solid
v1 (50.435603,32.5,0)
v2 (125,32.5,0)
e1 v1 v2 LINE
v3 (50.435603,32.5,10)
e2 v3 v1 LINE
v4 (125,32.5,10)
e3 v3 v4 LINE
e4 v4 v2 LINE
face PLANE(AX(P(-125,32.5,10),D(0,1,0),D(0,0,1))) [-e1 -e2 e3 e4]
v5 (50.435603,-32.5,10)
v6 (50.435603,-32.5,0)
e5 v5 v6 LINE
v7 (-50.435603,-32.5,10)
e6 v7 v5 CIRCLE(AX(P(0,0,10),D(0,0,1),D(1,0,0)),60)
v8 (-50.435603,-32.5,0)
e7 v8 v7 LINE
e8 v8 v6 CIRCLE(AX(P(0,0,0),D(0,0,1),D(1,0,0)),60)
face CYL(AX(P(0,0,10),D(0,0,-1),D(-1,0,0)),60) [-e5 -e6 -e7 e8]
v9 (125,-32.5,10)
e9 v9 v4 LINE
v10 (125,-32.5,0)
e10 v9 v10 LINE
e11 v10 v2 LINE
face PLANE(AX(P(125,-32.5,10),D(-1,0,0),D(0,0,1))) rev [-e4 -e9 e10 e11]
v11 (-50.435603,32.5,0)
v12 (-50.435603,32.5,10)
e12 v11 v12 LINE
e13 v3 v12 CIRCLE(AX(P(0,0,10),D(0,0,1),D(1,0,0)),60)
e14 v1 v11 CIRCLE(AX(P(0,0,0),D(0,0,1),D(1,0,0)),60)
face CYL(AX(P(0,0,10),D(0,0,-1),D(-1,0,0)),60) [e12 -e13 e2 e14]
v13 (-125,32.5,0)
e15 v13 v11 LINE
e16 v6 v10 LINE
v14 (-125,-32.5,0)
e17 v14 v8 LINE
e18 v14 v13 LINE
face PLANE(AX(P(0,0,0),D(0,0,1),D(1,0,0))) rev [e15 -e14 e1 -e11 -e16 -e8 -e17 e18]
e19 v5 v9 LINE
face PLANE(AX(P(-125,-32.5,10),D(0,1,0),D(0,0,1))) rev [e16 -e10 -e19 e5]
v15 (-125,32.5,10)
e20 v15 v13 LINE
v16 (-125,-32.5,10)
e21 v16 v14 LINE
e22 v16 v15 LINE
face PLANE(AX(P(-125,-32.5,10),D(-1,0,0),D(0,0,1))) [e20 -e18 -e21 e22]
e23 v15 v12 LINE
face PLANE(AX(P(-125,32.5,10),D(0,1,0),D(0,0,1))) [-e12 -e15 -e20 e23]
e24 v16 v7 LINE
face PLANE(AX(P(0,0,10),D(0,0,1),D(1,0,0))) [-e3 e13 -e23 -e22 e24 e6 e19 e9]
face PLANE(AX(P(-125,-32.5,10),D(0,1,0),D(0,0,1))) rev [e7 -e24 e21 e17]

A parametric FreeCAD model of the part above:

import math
import FreeCAD as App
import Part
import Sketcher
from FreeCAD import Vector
Q = App.Units.Quantity

doc = App.newDocument("Part")
body = doc.addObject("PartDesign::Body", "Body")

# Sketch on XY plane
sketch1 = body.newObject("Sketcher::SketchObject", "Sketch")
sketch1.AttachmentSupport = (doc.getObject("XY_Plane"), [""])
sketch1.MapMode = "FlatFace"
sketch1.addGeometry([
    Part.LineSegment(Vector(50, -32, 0), Vector(125, -32, 0)),  # 0
    Part.LineSegment(Vector(125, -32, 0), Vector(125, 32, 0)),  # 1
    Part.LineSegment(Vector(125, 32, 0), Vector(50, 32, 0)),  # 2
    Part.ArcOfCircle(Part.Circle(Vector(0, 0, 0), Vector(0, 0, 1), 60), math.radians(33), math.radians(147)),  # 3
    Part.LineSegment(Vector(-50, 32, 0), Vector(-125, 32, 0)),  # 4
    Part.LineSegment(Vector(-125, 32, 0), Vector(-125, -32, 0)),  # 5
    Part.LineSegment(Vector(-125, -32, 0), Vector(-50, -32, 0)),  # 6
    Part.ArcOfCircle(Part.Circle(Vector(0, 0, 0), Vector(0, 0, 1), 60), math.radians(-147), math.radians(-33)),  # 7
], False)
sketch1.addConstraint([
    Sketcher.Constraint("Coincident", 0, 2, 1, 1),
    Sketcher.Constraint("Coincident", 1, 2, 2, 1),
    Sketcher.Constraint("Coincident", 2, 2, 3, 1),
    Sketcher.Constraint("Coincident", 3, 2, 4, 1),
    Sketcher.Constraint("Coincident", 4, 2, 5, 1),
    Sketcher.Constraint("Coincident", 5, 2, 6, 1),
    Sketcher.Constraint("Coincident", 6, 2, 7, 1),
    Sketcher.Constraint("Coincident", 7, 2, 0, 1),
    Sketcher.Constraint("Horizontal", 0),
    Sketcher.Constraint("Vertical", 1),
    Sketcher.Constraint("Horizontal", 2),
    Sketcher.Constraint("Horizontal", 4),
    Sketcher.Constraint("Vertical", 5),
    Sketcher.Constraint("Horizontal", 6),
    Sketcher.Constraint("Coincident", 3, 3, -1, 1),
    Sketcher.Constraint("Coincident", 7, 3, -1, 1),
    Sketcher.Constraint("Equal", 3, 7),
    Sketcher.Constraint("Symmetric", 0, 2, 4, 2, -1, 1),
    Sketcher.Constraint("Horizontal", 2, 2, 3, 2),
    Sketcher.Constraint("Horizontal", 0, 2, 5, 2),
    Sketcher.Constraint("Radius", 3, Q("60 mm")),
    Sketcher.Constraint("DistanceY", 1, 1, 1, 2, Q("65 mm")),
    Sketcher.Constraint("DistanceX", -1, 1, 0, 2, Q("125 mm")),
])
pad1 = body.newObject("PartDesign::Pad", "Pad")
pad1.Profile = sketch1
pad1.Length = 10

doc.recompute()
